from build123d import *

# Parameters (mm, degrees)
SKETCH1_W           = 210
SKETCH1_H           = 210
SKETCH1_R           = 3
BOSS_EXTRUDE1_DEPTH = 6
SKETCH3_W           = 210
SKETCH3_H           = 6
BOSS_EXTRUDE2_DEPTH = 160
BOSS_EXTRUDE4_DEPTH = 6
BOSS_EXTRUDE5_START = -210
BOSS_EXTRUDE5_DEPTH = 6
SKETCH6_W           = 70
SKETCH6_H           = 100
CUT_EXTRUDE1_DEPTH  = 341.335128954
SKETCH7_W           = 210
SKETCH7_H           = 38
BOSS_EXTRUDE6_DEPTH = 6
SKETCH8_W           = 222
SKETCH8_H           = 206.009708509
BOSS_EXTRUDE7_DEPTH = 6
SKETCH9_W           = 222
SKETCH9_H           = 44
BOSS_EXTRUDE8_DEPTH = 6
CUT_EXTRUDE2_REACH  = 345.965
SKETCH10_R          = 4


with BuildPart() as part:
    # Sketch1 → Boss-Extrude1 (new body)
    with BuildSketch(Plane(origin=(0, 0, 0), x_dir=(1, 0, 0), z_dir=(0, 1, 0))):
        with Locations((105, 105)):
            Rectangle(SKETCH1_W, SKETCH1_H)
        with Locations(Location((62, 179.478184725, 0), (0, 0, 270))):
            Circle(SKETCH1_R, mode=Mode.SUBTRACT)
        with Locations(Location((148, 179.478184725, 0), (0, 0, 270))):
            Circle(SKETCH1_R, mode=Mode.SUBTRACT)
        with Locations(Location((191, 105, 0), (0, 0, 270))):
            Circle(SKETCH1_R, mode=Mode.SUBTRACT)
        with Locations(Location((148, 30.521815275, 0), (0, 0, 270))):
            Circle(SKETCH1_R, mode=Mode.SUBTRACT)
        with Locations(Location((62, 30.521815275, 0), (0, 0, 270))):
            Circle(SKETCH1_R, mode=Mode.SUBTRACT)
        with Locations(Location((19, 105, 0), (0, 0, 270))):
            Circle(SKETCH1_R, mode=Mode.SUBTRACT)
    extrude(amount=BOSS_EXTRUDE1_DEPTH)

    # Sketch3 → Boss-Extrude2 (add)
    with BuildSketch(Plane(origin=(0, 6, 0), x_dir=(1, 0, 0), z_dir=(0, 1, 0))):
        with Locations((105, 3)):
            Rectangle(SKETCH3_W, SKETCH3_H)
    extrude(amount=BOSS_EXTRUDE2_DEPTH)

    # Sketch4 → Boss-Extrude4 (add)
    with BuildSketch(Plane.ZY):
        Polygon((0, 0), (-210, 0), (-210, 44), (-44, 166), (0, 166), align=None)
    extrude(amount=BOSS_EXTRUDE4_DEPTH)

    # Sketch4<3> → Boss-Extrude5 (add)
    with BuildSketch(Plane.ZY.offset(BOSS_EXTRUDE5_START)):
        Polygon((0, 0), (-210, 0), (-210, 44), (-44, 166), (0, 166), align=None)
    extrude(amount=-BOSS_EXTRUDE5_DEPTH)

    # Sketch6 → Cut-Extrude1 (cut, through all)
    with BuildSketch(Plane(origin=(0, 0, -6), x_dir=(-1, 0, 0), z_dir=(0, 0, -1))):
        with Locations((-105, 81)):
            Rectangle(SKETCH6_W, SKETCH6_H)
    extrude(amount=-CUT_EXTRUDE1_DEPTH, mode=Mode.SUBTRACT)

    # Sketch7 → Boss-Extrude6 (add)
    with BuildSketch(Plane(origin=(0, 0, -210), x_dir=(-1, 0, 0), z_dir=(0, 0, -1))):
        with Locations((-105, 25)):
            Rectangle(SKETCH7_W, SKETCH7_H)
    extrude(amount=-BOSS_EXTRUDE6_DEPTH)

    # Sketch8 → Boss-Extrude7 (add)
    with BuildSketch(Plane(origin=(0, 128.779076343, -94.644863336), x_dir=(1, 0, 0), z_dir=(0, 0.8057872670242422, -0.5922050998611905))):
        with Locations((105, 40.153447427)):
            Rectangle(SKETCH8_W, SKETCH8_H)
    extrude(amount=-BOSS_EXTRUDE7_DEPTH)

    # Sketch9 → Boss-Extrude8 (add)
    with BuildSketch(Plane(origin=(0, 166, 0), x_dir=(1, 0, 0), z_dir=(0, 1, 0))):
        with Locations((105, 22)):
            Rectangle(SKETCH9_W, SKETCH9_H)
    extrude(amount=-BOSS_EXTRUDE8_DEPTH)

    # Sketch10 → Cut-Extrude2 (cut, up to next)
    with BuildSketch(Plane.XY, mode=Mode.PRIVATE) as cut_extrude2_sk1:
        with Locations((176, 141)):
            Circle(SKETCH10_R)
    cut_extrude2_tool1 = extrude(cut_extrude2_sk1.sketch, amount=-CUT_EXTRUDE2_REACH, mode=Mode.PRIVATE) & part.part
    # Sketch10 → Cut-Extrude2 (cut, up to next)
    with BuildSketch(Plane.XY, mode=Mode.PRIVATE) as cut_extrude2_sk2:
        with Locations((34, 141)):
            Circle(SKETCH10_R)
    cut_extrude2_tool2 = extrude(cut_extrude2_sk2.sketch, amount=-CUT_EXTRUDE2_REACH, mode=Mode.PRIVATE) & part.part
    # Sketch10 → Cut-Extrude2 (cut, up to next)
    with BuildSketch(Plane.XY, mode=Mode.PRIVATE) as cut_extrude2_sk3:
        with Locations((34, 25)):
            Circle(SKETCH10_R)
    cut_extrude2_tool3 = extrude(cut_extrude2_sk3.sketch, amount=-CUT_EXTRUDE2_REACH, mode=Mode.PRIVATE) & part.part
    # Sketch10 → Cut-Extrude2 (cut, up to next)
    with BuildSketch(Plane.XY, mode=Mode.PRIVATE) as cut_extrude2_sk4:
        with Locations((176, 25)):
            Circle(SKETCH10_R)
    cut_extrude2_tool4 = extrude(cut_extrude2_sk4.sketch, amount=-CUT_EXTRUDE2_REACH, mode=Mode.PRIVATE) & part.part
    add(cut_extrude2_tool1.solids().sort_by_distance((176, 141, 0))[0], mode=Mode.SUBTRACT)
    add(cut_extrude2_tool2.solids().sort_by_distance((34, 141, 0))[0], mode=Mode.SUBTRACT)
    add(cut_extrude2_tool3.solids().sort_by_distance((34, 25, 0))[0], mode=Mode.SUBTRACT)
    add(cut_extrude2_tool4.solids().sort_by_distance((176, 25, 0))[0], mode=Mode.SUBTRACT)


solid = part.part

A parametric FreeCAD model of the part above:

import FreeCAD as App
import Part
import Sketcher

V = App.Vector
Q = App.Units.Quantity

doc = App.newDocument("Part")
body = doc.addObject("PartDesign::Body", "Body")

# Sketch on XZ plane
sketch1 = body.newObject("Sketcher::SketchObject", "Sketch")
sketch1.AttachmentSupport = (doc.getObject("XZ_Plane"), [""])
sketch1.MapMode = "FlatFace"
sketch1.addGeometry(Part.LineSegment(V(0, -210, 0), V(0, 0, 0)), False)
sketch1.addGeometry(Part.LineSegment(V(0, 0, 0), V(210, 0, 0)), False)
sketch1.addGeometry(Part.LineSegment(V(210, 0, 0), V(210, -210, 0)), False)
sketch1.addGeometry(Part.LineSegment(V(210, -210, 0), V(0, -210, 0)), False)
sketch1.addGeometry(Part.Circle(V(62, -30.5, 0), V(0, 0, 1), 3), False)
sketch1.addGeometry(Part.Circle(V(148, -30.5, 0), V(0, 0, 1), 3), False)
sketch1.addGeometry(Part.Circle(V(19, -105, 0), V(0, 0, 1), 3), False)
sketch1.addGeometry(Part.Circle(V(62, -179.5, 0), V(0, 0, 1), 3), False)
sketch1.addGeometry(Part.Circle(V(191, -105, 0), V(0, 0, 1), 3), False)
sketch1.addGeometry(Part.Circle(V(148, -179.5, 0), V(0, 0, 1), 3), False)
sketch1.addConstraint(Sketcher.Constraint("Coincident", 0, 2, 1, 1))
sketch1.addConstraint(Sketcher.Constraint("Coincident", 1, 2, 2, 1))
sketch1.addConstraint(Sketcher.Constraint("Coincident", 2, 2, 3, 1))
sketch1.addConstraint(Sketcher.Constraint("Coincident", 3, 2, 0, 1))
sketch1.addConstraint(Sketcher.Constraint("Vertical", 0))
sketch1.addConstraint(Sketcher.Constraint("Horizontal", 1))
sketch1.addConstraint(Sketcher.Constraint("Vertical", 2))
sketch1.addConstraint(Sketcher.Constraint("Horizontal", 3))
sketch1.addConstraint(Sketcher.Constraint("Coincident", 0, 2, -1, 1))
sketch1.addConstraint(Sketcher.Constraint("Equal", 4, 5))
sketch1.addConstraint(Sketcher.Constraint("Equal", 5, 6))
sketch1.addConstraint(Sketcher.Constraint("Equal", 6, 7))
sketch1.addConstraint(Sketcher.Constraint("Equal", 7, 8))
sketch1.addConstraint(Sketcher.Constraint("Equal", 8, 9))
sketch1.addConstraint(Sketcher.Constraint("Horizontal", 4, 3, 5, 3))
sketch1.addConstraint(Sketcher.Constraint("Horizontal", 6, 3, 8, 3))
sketch1.addConstraint(Sketcher.Constraint("Horizontal", 7, 3, 9, 3))
sketch1.addConstraint(Sketcher.Constraint("Vertical", 4, 3, 7, 3))
sketch1.addConstraint(Sketcher.Constraint("Vertical", 5, 3, 9, 3))
sketch1.addConstraint(Sketcher.Constraint("Equal", 3, 0))
sketch1.addConstraint(Sketcher.Constraint("Diameter", 4, Q("6 mm")))
sketch1.addConstraint(Sketcher.Constraint("DistanceX", 1, 1, 1, 2, Q("210 mm")))
sketch1.addConstraint(Sketcher.Constraint("DistanceX", -1, 1, 4, 3, Q("62 mm")))
sketch1.addConstraint(Sketcher.Constraint("DistanceX", -1, 1, 5, 3, Q("148 mm")))
sketch1.addConstraint(Sketcher.Constraint("DistanceX", -1, 1, 6, 3, Q("19 mm")))
sketch1.addConstraint(Sketcher.Constraint("DistanceY", 6, 3, -1, 1, Q("105 mm")))
sketch1.addConstraint(Sketcher.Constraint("DistanceX", -1, 1, 8, 3, Q("191 mm")))
sketch1.addConstraint(Sketcher.Constraint("DistanceY", 7, 3, 4, 3, Q("148.956369 mm")))
sketch1.addConstraint(Sketcher.Constraint("DistanceY", 4, 3, -1, 1, Q("30.521815 mm")))
pad1 = body.newObject("PartDesign::Pad", "Pad")
pad1.Profile = sketch1
pad1.Length = 6
pad1.Reversed = True

# Sketch on XZ plane
sketch2 = body.newObject("Sketcher::SketchObject", "Sketch001")
sketch2.AttachmentSupport = (doc.getObject("XZ_Plane"), [""])
sketch2.MapMode = "FlatFace"
sketch2.AttachmentOffset = App.Placement(V(0, 0, -6), App.Rotation())
sketch2.addGeometry(Part.LineSegment(V(0, -6, 0), V(0, 0, 0)), False)
sketch2.addGeometry(Part.LineSegment(V(0, 0, 0), V(210, 0, 0)), False)
sketch2.addGeometry(Part.LineSegment(V(210, 0, 0), V(210, -6, 0)), False)
sketch2.addGeometry(Part.LineSegment(V(210, -6, 0), V(0, -6, 0)), False)
sketch2.addConstraint(Sketcher.Constraint("Coincident", 0, 2, 1, 1))
sketch2.addConstraint(Sketcher.Constraint("Coincident", 1, 2, 2, 1))
sketch2.addConstraint(Sketcher.Constraint("Coincident", 2, 2, 3, 1))
sketch2.addConstraint(Sketcher.Constraint("Coincident", 3, 2, 0, 1))
sketch2.addConstraint(Sketcher.Constraint("Vertical", 0))
sketch2.addConstraint(Sketcher.Constraint("Horizontal", 1))
sketch2.addConstraint(Sketcher.Constraint("Vertical", 2))
sketch2.addConstraint(Sketcher.Constraint("Horizontal", 3))
sketch2.addConstraint(Sketcher.Constraint("Coincident", 0, 2, -1, 1))
sketch2.addConstraint(Sketcher.Constraint("DistanceX", 1, 1, 1, 2, Q("210 mm")))
sketch2.addConstraint(Sketcher.Constraint("DistanceY", 0, 1, 0, 2, Q("6 mm")))
pad2 = body.newObject("PartDesign::Pad", "Pad001")
pad2.Profile = sketch2
pad2.Length = 160
pad2.Reversed = True

# Sketch on YZ plane
sketch3 = body.newObject("Sketcher::SketchObject", "Sketch002")
sketch3.AttachmentSupport = (doc.getObject("YZ_Plane"), [""])
sketch3.MapMode = "FlatFace"
sketch3.addGeometry(Part.LineSegment(V(0, -210, 0), V(0, 0, 0)), False)
sketch3.addGeometry(Part.LineSegment(V(0, 0, 0), V(166, 0, 0)), False)
sketch3.addGeometry(Part.LineSegment(V(166, 0, 0), V(166, -44, 0)), False)
sketch3.addGeometry(Part.LineSegment(V(166, -44, 0), V(44, -210, 0)), False)
sketch3.addGeometry(Part.LineSegment(V(44, -210, 0), V(0, -210, 0)), False)
sketch3.addConstraint(Sketcher.Constraint("Coincident", 0, 2, 1, 1))
sketch3.addConstraint(Sketcher.Constraint("Coincident", 1, 2, 2, 1))
sketch3.addConstraint(Sketcher.Constraint("Coincident", 2, 2, 3, 1))
sketch3.addConstraint(Sketcher.Constraint("Coincident", 3, 2, 4, 1))
sketch3.addConstraint(Sketcher.Constraint("Coincident", 4, 2, 0, 1))
sketch3.addConstraint(Sketcher.Constraint("Vertical", 0))
sketch3.addConstraint(Sketcher.Constraint("Horizontal", 1))
sketch3.addConstraint(Sketcher.Constraint("Vertical", 2))
sketch3.addConstraint(Sketcher.Constraint("Horizontal", 4))
sketch3.addConstraint(Sketcher.Constraint("Coincident", 0, 2, -1, 1))
sketch3.addConstraint(Sketcher.Constraint("Equal", 4, 2))
sketch3.addConstraint(Sketcher.Constraint("DistanceX", 1, 1, 1, 2, Q("166 mm")))
sketch3.addConstraint(Sketcher.Constraint("DistanceX", 4, 2, 4, 1, Q("44 mm")))
sketch3.addConstraint(Sketcher.Constraint("DistanceY", 0, 1, 0, 2, Q("210 mm")))
pad3 = body.newObject("PartDesign::Pad", "Pad002")
pad3.Profile = sketch3
pad3.Length = 6
pad3.Reversed = True

# Sketch on YZ plane
sketch4 = body.newObject("Sketcher::SketchObject", "Sketch003")
sketch4.AttachmentSupport = (doc.getObject("YZ_Plane"), [""])
sketch4.MapMode = "FlatFace"
sketch4.AttachmentOffset = App.Placement(V(0, 0, 210), App.Rotation())
sketch4.addGeometry(Part.LineSegment(V(0, -210, 0), V(0, 0, 0)), False)
sketch4.addGeometry(Part.LineSegment(V(0, 0, 0), V(166, 0, 0)), False)
sketch4.addGeometry(Part.LineSegment(V(166, 0, 0), V(166, -44, 0)), False)
sketch4.addGeometry(Part.LineSegment(V(166, -44, 0), V(44, -210, 0)), False)
sketch4.addGeometry(Part.LineSegment(V(44, -210, 0), V(0, -210, 0)), False)
sketch4.addConstraint(Sketcher.Constraint("Coincident", 0, 2, 1, 1))
sketch4.addConstraint(Sketcher.Constraint("Coincident", 1, 2, 2, 1))
sketch4.addConstraint(Sketcher.Constraint("Coincident", 2, 2, 3, 1))
sketch4.addConstraint(Sketcher.Constraint("Coincident", 3, 2, 4, 1))
sketch4.addConstraint(Sketcher.Constraint("Coincident", 4, 2, 0, 1))
sketch4.addConstraint(Sketcher.Constraint("Vertical", 0))
sketch4.addConstraint(Sketcher.Constraint("Horizontal", 1))
sketch4.addConstraint(Sketcher.Constraint("Vertical", 2))
sketch4.addConstraint(Sketcher.Constraint("Horizontal", 4))
sketch4.addConstraint(Sketcher.Constraint("Coincident", 0, 2, -1, 1))
sketch4.addConstraint(Sketcher.Constraint("Equal", 4, 2))
sketch4.addConstraint(Sketcher.Constraint("DistanceX", 1, 1, 1, 2, Q("166 mm")))
sketch4.addConstraint(Sketcher.Constraint("DistanceX", 4, 2, 4, 1, Q("44 mm")))
sketch4.addConstraint(Sketcher.Constraint("DistanceY", 0, 1, 0, 2, Q("210 mm")))
pad4 = body.newObject("PartDesign::Pad", "Pad003")
pad4.Profile = sketch4
pad4.Length = 6

# Sketch on XY plane
sketch5 = body.newObject("Sketcher::SketchObject", "Sketch004")
sketch5.AttachmentSupport = (doc.getObject("XY_Plane"), [""])
sketch5.MapMode = "FlatFace"
sketch5.AttachmentOffset = App.Placement(V(0, 0, -6), App.Rotation())
sketch5.addGeometry(Part.LineSegment(V(140, 131, 0), V(140, 31, 0)), False)
sketch5.addGeometry(Part.LineSegment(V(140, 31, 0), V(70, 31, 0)), False)
sketch5.addGeometry(Part.LineSegment(V(70, 31, 0), V(70, 131, 0)), False)
sketch5.addGeometry(Part.LineSegment(V(70, 131, 0), V(140, 131, 0)), False)
sketch5.addConstraint(Sketcher.Constraint("Coincident", 0, 2, 1, 1))
sketch5.addConstraint(Sketcher.Constraint("Coincident", 1, 2, 2, 1))
sketch5.addConstraint(Sketcher.Constraint("Coincident", 2, 2, 3, 1))
sketch5.addConstraint(Sketcher.Constraint("Coincident", 3, 2, 0, 1))
sketch5.addConstraint(Sketcher.Constraint("Vertical", 0))
sketch5.addConstraint(Sketcher.Constraint("Horizontal", 1))
sketch5.addConstraint(Sketcher.Constraint("Vertical", 2))
sketch5.addConstraint(Sketcher.Constraint("Horizontal", 3))
sketch5.addConstraint(Sketcher.Constraint("DistanceX", 1, 2, 1, 1, Q("70 mm")))
sketch5.addConstraint(Sketcher.Constraint("DistanceY", 0, 2, 0, 1, Q("100 mm")))
sketch5.addConstraint(Sketcher.Constraint("DistanceX", -1, 1, 0, 2, Q("140 mm")))
sketch5.addConstraint(Sketcher.Constraint("DistanceY", -1, 1, 0, 2, Q("31 mm")))
pocket1 = body.newObject("PartDesign::Pocket", "Pocket")
pocket1.Profile = sketch5
pocket1.Type = "ThroughAll"
pocket1.Reversed = True

# Sketch on XY plane
sketch6 = body.newObject("Sketcher::SketchObject", "Sketch005")
sketch6.AttachmentSupport = (doc.getObject("XY_Plane"), [""])
sketch6.MapMode = "FlatFace"
sketch6.AttachmentOffset = App.Placement(V(0, 0, -210), App.Rotation())
sketch6.addGeometry(Part.LineSegment(V(210, 44, 0), V(210, 6, 0)), False)
sketch6.addGeometry(Part.LineSegment(V(210, 6, 0), V(0, 6, 0)), False)
sketch6.addGeometry(Part.LineSegment(V(0, 6, 0), V(0, 44, 0)), False)
sketch6.addGeometry(Part.LineSegment(V(0, 44, 0), V(210, 44, 0)), False)
sketch6.addConstraint(Sketcher.Constraint("Coincident", 0, 2, 1, 1))
sketch6.addConstraint(Sketcher.Constraint("Coincident", 1, 2, 2, 1))
sketch6.addConstraint(Sketcher.Constraint("Coincident", 2, 2, 3, 1))
sketch6.addConstraint(Sketcher.Constraint("Coincident", 3, 2, 0, 1))
sketch6.addConstraint(Sketcher.Constraint("Vertical", 0))
sketch6.addConstraint(Sketcher.Constraint("Horizontal", 1))
sketch6.addConstraint(Sketcher.Constraint("Vertical", 2))
sketch6.addConstraint(Sketcher.Constraint("Horizontal", 3))
sketch6.addConstraint(Sketcher.Constraint("PointOnObject", 1, 2, -2))
sketch6.addConstraint(Sketcher.Constraint("DistanceX", 1, 2, 1, 1, Q("210 mm")))
sketch6.addConstraint(Sketcher.Constraint("DistanceY", 0, 2, 0, 1, Q("38 mm")))
sketch6.addConstraint(Sketcher.Constraint("DistanceY", -1, 1, 0, 2, Q("6 mm")))
pad5 = body.newObject("PartDesign::Pad", "Pad004")
pad5.Profile = sketch6
pad5.Length = 6

# Sketch on an angled plane
sketch7 = body.newObject("Sketcher::SketchObject", "Sketch006")
sketch7.Placement = App.Placement(V(0, 128.779076, -94.644863), App.Rotation(V(1, 0, 0), V(0, -0.5922051, -0.805787267), V(0, 0.805787267, -0.5922051), "ZXY"))
sketch7.addGeometry(Part.LineSegment(V(-6, 143, 0), V(-6, -63, 0)), False)
sketch7.addGeometry(Part.LineSegment(V(-6, -63, 0), V(216, -63, 0)), False)
sketch7.addGeometry(Part.LineSegment(V(216, -63, 0), V(216, 143, 0)), False)
sketch7.addGeometry(Part.LineSegment(V(216, 143, 0), V(-6, 143, 0)), False)
sketch7.addConstraint(Sketcher.Constraint("Coincident", 0, 2, 1, 1))
sketch7.addConstraint(Sketcher.Constraint("Coincident", 1, 2, 2, 1))
sketch7.addConstraint(Sketcher.Constraint("Coincident", 2, 2, 3, 1))
sketch7.addConstraint(Sketcher.Constraint("Coincident", 3, 2, 0, 1))
sketch7.addConstraint(Sketcher.Constraint("Vertical", 0))
sketch7.addConstraint(Sketcher.Constraint("Horizontal", 1))
sketch7.addConstraint(Sketcher.Constraint("Vertical", 2))
sketch7.addConstraint(Sketcher.Constraint("Horizontal", 3))
sketch7.addConstraint(Sketcher.Constraint("DistanceX", 1, 1, 1, 2, Q("222 mm")))
sketch7.addConstraint(Sketcher.Constraint("DistanceX", 0, 2, -1, 1, Q("6 mm")))
sketch7.addConstraint(Sketcher.Constraint("DistanceY", 0, 2, 0, 1, Q("206.009709 mm")))
sketch7.addConstraint(Sketcher.Constraint("DistanceY", -1, 1, 2, 2, Q("143.158302 mm")))
pad6 = body.newObject("PartDesign::Pad", "Pad005")
pad6.Profile = sketch7
pad6.Length = 6
pad6.Reversed = True

# Sketch on XZ plane
sketch8 = body.newObject("Sketcher::SketchObject", "Sketch007")
sketch8.AttachmentSupport = (doc.getObject("XZ_Plane"), [""])
sketch8.MapMode = "FlatFace"
sketch8.AttachmentOffset = App.Placement(V(0, 0, -166), App.Rotation())
sketch8.addGeometry(Part.LineSegment(V(-6, -44, 0), V(-6, 0, 0)), False)
sketch8.addGeometry(Part.LineSegment(V(-6, 0, 0), V(216, 0, 0)), False)
sketch8.addGeometry(Part.LineSegment(V(216, 0, 0), V(216, -44, 0)), False)
sketch8.addGeometry(Part.LineSegment(V(216, -44, 0), V(-6, -44, 0)), False)
sketch8.addConstraint(Sketcher.Constraint("Coincident", 0, 2, 1, 1))
sketch8.addConstraint(Sketcher.Constraint("Coincident", 1, 2, 2, 1))
sketch8.addConstraint(Sketcher.Constraint("Coincident", 2, 2, 3, 1))
sketch8.addConstraint(Sketcher.Constraint("Coincident", 3, 2, 0, 1))
sketch8.addConstraint(Sketcher.Constraint("Vertical", 0))
sketch8.addConstraint(Sketcher.Constraint("Horizontal", 1))
sketch8.addConstraint(Sketcher.Constraint("Vertical", 2))
sketch8.addConstraint(Sketcher.Constraint("Horizontal", 3))
sketch8.addConstraint(Sketcher.Constraint("PointOnObject", 0, 2, -1))
sketch8.addConstraint(Sketcher.Constraint("DistanceX", 1, 1, 1, 2, Q("222 mm")))
sketch8.addConstraint(Sketcher.Constraint("DistanceY", 0, 1, 0, 2, Q("44 mm")))
sketch8.addConstraint(Sketcher.Constraint("DistanceX", 0, 2, -1, 1, Q("6 mm")))
pad7 = body.newObject("PartDesign::Pad", "Pad006")
pad7.Profile = sketch8
pad7.Length = 6

# Sketch on XY plane
sketch9 = body.newObject("Sketcher::SketchObject", "Sketch008")
sketch9.AttachmentSupport = (doc.getObject("XY_Plane"), [""])
sketch9.MapMode = "FlatFace"
sketch9.addGeometry(Part.Circle(V(176, 141, 0), V(0, 0, 1), 4), False)
sketch9.addConstraint(Sketcher.Constraint("Diameter", 0, Q("8 mm")))
sketch9.addConstraint(Sketcher.Constraint("DistanceX", -1, 1, 0, 3, Q("176 mm")))
sketch9.addConstraint(Sketcher.Constraint("DistanceY", -1, 1, 0, 3, Q("141 mm")))
pocket2 = body.newObject("PartDesign::Pocket", "Pocket001")
pocket2.Profile = sketch9
pocket2.Type = "UpToFirst"

# Sketch on XY plane
sketch10 = body.newObject("Sketcher::SketchObject", "Sketch009")
sketch10.AttachmentSupport = (doc.getObject("XY_Plane"), [""])
sketch10.MapMode = "FlatFace"
sketch10.addGeometry(Part.Circle(V(34, 141, 0), V(0, 0, 1), 4), False)
sketch10.addConstraint(Sketcher.Constraint("Diameter", 0, Q("8 mm")))
sketch10.addConstraint(Sketcher.Constraint("DistanceX", -1, 1, 0, 3, Q("34 mm")))
sketch10.addConstraint(Sketcher.Constraint("DistanceY", -1, 1, 0, 3, Q("141 mm")))
pocket3 = body.newObject("PartDesign::Pocket", "Pocket002")
pocket3.Profile = sketch10
pocket3.Type = "UpToFirst"

# Sketch on XY plane
sketch11 = body.newObject("Sketcher::SketchObject", "Sketch010")
sketch11.AttachmentSupport = (doc.getObject("XY_Plane"), [""])
sketch11.MapMode = "FlatFace"
sketch11.addGeometry(Part.Circle(V(34, 25, 0), V(0, 0, 1), 4), False)
sketch11.addConstraint(Sketcher.Constraint("Diameter", 0, Q("8 mm")))
sketch11.addConstraint(Sketcher.Constraint("DistanceX", -1, 1, 0, 3, Q("34 mm")))
sketch11.addConstraint(Sketcher.Constraint("DistanceY", -1, 1, 0, 3, Q("25 mm")))
pocket4 = body.newObject("PartDesign::Pocket", "Pocket003")
pocket4.Profile = sketch11
pocket4.Type = "UpToFirst"

# Sketch on XY plane
sketch12 = body.newObject("Sketcher::SketchObject", "Sketch011")
sketch12.AttachmentSupport = (doc.getObject("XY_Plane"), [""])
sketch12.MapMode = "FlatFace"
sketch12.addGeometry(Part.Circle(V(176, 25, 0), V(0, 0, 1), 4), False)
sketch12.addConstraint(Sketcher.Constraint("Diameter", 0, Q("8 mm")))
sketch12.addConstraint(Sketcher.Constraint("DistanceX", -1, 1, 0, 3, Q("176 mm")))
sketch12.addConstraint(Sketcher.Constraint("DistanceY", -1, 1, 0, 3, Q("25 mm")))
pocket5 = body.newObject("PartDesign::Pocket", "Pocket004")
pocket5.Profile = sketch12
pocket5.Type = "UpToFirst"

doc.recompute()
